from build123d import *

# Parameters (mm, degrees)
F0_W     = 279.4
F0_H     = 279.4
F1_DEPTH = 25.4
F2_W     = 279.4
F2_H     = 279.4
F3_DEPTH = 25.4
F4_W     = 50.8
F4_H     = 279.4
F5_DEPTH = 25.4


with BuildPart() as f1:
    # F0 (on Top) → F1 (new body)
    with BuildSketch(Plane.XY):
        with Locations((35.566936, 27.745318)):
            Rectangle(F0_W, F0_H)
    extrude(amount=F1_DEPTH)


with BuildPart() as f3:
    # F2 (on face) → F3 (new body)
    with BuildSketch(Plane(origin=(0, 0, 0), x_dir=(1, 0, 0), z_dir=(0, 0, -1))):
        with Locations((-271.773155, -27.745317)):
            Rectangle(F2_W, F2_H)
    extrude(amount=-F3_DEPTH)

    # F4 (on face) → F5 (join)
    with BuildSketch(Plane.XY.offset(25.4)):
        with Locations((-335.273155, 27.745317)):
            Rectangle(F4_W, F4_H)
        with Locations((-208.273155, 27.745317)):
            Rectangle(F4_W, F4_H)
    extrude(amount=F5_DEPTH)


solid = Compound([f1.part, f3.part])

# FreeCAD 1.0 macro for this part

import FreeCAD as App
import Part
import Sketcher

V = App.Vector
Q = App.Units.Quantity


def add_polygon(sketch, points):
    """Adds a closed chain of lines whose ends are joined by coincident constraints."""
    first, n = sketch.GeometryCount, len(points)
    for a, b in zip(points, points[1:] + points[:1]):
        sketch.addGeometry(Part.LineSegment(App.Vector(*a, 0), App.Vector(*b, 0)), False)
    for i in range(n):
        sketch.addConstraint(Sketcher.Constraint("Coincident", first + i, 2, first + (i + 1) % n, 1))

doc = App.newDocument("Part")
body = doc.addObject("PartDesign::Body", "Body")

sketch1 = doc.addObject("Sketcher::SketchObject", "Sketch")
body.addObject(sketch1)
sketch1.AttachmentSupport = (doc.XY_Plane, [""])
sketch1.MapMode = "FlatFace"
add_polygon(sketch1, [(-104, 167), (-104, -112), (175, -112), (175, 167)])
sketch1.addConstraint(Sketcher.Constraint("Vertical", 0))
sketch1.addConstraint(Sketcher.Constraint("Horizontal", 1))
sketch1.addConstraint(Sketcher.Constraint("Vertical", 2))
sketch1.addConstraint(Sketcher.Constraint("Horizontal", 3))
sketch1.addConstraint(Sketcher.Constraint("Equal", 3, 0))
sketch1.addConstraint(Sketcher.Constraint("DistanceX", 1, 1, 1, 2, Q("11 in")))
sketch1.addConstraint(Sketcher.Constraint("DistanceX", 0, 2, -1, 1, 104.133064))
sketch1.addConstraint(Sketcher.Constraint("DistanceY", 0, 2, -1, 1, 111.954682))
pad1 = doc.addObject("PartDesign::Pad", "Pad")
body.addObject(pad1)
pad1.Profile = sketch1
pad1.Length = Q("1 in")
body2 = doc.addObject("PartDesign::Body", "Body001")

sketch2 = doc.addObject("Sketcher::SketchObject", "Sketch001")
body2.addObject(sketch2)
sketch2.AttachmentSupport = (doc.getObject("XY_Plane001"), [""])
sketch2.MapMode = "FlatFace"
add_polygon(sketch2, [(-411, -112), (-411, 167), (-132, 167), (-132, -112)])
sketch2.addConstraint(Sketcher.Constraint("Vertical", 0))
sketch2.addConstraint(Sketcher.Constraint("Horizontal", 1))
sketch2.addConstraint(Sketcher.Constraint("Vertical", 2))
sketch2.addConstraint(Sketcher.Constraint("Horizontal", 3))
sketch2.addConstraint(Sketcher.Constraint("Equal", 3, 0))
sketch2.addConstraint(Sketcher.Constraint("DistanceX", 1, 1, 1, 2, Q("11 in")))
sketch2.addConstraint(Sketcher.Constraint("DistanceX", 0, 2, -1, 1, 411.473155))
sketch2.addConstraint(Sketcher.Constraint("DistanceY", -1, 1, 0, 2, 167.445317))
pad2 = doc.addObject("PartDesign::Pad", "Pad001")
body2.addObject(pad2)
pad2.Profile = sketch2
pad2.Length = Q("1 in")

sketch3 = doc.addObject("Sketcher::SketchObject", "Sketch002")
body2.addObject(sketch3)
sketch3.AttachmentSupport = (doc.getObject("XY_Plane001"), [""])
sketch3.MapMode = "FlatFace"
sketch3.AttachmentOffset = App.Placement(V(0, 0, 1 * 25.4), App.Rotation())
add_polygon(sketch3, [(-361, 167), (-361, -112), (-310, -112), (-310, 167)])
add_polygon(sketch3, [(-234, 167), (-234, -112), (-183, -112), (-183, 167)])
sketch3.addConstraint(Sketcher.Constraint("Vertical", 0))
sketch3.addConstraint(Sketcher.Constraint("Horizontal", 1))
sketch3.addConstraint(Sketcher.Constraint("Vertical", 2))
sketch3.addConstraint(Sketcher.Constraint("Horizontal", 3))
sketch3.addConstraint(Sketcher.Constraint("Vertical", 4))
sketch3.addConstraint(Sketcher.Constraint("Horizontal", 5))
sketch3.addConstraint(Sketcher.Constraint("Vertical", 6))
sketch3.addConstraint(Sketcher.Constraint("Horizontal", 7))
sketch3.addConstraint(Sketcher.Constraint("Horizontal", 1, 2, 4, 2))
sketch3.addConstraint(Sketcher.Constraint("Horizontal", 3, 2, 6, 2))
sketch3.addConstraint(Sketcher.Constraint("Equal", 3, 5))
sketch3.addConstraint(Sketcher.Constraint("DistanceX", 1, 1, 1, 2, Q("2 in")))
sketch3.addConstraint(Sketcher.Constraint("DistanceY", 0, 2, 0, 1, Q("11 in")))
sketch3.addConstraint(Sketcher.Constraint("DistanceX", 1, 2, 4, 2, Q("3 in")))
sketch3.addConstraint(Sketcher.Constraint("DistanceX", 0, 2, -1, 1, 360.673155))
sketch3.addConstraint(Sketcher.Constraint("DistanceY", 0, 2, -1, 1, 111.954683))
pad3 = doc.addObject("PartDesign::Pad", "Pad002")
body2.addObject(pad3)
pad3.Profile = sketch3
pad3.Length = Q("1 in")

doc.recompute()
